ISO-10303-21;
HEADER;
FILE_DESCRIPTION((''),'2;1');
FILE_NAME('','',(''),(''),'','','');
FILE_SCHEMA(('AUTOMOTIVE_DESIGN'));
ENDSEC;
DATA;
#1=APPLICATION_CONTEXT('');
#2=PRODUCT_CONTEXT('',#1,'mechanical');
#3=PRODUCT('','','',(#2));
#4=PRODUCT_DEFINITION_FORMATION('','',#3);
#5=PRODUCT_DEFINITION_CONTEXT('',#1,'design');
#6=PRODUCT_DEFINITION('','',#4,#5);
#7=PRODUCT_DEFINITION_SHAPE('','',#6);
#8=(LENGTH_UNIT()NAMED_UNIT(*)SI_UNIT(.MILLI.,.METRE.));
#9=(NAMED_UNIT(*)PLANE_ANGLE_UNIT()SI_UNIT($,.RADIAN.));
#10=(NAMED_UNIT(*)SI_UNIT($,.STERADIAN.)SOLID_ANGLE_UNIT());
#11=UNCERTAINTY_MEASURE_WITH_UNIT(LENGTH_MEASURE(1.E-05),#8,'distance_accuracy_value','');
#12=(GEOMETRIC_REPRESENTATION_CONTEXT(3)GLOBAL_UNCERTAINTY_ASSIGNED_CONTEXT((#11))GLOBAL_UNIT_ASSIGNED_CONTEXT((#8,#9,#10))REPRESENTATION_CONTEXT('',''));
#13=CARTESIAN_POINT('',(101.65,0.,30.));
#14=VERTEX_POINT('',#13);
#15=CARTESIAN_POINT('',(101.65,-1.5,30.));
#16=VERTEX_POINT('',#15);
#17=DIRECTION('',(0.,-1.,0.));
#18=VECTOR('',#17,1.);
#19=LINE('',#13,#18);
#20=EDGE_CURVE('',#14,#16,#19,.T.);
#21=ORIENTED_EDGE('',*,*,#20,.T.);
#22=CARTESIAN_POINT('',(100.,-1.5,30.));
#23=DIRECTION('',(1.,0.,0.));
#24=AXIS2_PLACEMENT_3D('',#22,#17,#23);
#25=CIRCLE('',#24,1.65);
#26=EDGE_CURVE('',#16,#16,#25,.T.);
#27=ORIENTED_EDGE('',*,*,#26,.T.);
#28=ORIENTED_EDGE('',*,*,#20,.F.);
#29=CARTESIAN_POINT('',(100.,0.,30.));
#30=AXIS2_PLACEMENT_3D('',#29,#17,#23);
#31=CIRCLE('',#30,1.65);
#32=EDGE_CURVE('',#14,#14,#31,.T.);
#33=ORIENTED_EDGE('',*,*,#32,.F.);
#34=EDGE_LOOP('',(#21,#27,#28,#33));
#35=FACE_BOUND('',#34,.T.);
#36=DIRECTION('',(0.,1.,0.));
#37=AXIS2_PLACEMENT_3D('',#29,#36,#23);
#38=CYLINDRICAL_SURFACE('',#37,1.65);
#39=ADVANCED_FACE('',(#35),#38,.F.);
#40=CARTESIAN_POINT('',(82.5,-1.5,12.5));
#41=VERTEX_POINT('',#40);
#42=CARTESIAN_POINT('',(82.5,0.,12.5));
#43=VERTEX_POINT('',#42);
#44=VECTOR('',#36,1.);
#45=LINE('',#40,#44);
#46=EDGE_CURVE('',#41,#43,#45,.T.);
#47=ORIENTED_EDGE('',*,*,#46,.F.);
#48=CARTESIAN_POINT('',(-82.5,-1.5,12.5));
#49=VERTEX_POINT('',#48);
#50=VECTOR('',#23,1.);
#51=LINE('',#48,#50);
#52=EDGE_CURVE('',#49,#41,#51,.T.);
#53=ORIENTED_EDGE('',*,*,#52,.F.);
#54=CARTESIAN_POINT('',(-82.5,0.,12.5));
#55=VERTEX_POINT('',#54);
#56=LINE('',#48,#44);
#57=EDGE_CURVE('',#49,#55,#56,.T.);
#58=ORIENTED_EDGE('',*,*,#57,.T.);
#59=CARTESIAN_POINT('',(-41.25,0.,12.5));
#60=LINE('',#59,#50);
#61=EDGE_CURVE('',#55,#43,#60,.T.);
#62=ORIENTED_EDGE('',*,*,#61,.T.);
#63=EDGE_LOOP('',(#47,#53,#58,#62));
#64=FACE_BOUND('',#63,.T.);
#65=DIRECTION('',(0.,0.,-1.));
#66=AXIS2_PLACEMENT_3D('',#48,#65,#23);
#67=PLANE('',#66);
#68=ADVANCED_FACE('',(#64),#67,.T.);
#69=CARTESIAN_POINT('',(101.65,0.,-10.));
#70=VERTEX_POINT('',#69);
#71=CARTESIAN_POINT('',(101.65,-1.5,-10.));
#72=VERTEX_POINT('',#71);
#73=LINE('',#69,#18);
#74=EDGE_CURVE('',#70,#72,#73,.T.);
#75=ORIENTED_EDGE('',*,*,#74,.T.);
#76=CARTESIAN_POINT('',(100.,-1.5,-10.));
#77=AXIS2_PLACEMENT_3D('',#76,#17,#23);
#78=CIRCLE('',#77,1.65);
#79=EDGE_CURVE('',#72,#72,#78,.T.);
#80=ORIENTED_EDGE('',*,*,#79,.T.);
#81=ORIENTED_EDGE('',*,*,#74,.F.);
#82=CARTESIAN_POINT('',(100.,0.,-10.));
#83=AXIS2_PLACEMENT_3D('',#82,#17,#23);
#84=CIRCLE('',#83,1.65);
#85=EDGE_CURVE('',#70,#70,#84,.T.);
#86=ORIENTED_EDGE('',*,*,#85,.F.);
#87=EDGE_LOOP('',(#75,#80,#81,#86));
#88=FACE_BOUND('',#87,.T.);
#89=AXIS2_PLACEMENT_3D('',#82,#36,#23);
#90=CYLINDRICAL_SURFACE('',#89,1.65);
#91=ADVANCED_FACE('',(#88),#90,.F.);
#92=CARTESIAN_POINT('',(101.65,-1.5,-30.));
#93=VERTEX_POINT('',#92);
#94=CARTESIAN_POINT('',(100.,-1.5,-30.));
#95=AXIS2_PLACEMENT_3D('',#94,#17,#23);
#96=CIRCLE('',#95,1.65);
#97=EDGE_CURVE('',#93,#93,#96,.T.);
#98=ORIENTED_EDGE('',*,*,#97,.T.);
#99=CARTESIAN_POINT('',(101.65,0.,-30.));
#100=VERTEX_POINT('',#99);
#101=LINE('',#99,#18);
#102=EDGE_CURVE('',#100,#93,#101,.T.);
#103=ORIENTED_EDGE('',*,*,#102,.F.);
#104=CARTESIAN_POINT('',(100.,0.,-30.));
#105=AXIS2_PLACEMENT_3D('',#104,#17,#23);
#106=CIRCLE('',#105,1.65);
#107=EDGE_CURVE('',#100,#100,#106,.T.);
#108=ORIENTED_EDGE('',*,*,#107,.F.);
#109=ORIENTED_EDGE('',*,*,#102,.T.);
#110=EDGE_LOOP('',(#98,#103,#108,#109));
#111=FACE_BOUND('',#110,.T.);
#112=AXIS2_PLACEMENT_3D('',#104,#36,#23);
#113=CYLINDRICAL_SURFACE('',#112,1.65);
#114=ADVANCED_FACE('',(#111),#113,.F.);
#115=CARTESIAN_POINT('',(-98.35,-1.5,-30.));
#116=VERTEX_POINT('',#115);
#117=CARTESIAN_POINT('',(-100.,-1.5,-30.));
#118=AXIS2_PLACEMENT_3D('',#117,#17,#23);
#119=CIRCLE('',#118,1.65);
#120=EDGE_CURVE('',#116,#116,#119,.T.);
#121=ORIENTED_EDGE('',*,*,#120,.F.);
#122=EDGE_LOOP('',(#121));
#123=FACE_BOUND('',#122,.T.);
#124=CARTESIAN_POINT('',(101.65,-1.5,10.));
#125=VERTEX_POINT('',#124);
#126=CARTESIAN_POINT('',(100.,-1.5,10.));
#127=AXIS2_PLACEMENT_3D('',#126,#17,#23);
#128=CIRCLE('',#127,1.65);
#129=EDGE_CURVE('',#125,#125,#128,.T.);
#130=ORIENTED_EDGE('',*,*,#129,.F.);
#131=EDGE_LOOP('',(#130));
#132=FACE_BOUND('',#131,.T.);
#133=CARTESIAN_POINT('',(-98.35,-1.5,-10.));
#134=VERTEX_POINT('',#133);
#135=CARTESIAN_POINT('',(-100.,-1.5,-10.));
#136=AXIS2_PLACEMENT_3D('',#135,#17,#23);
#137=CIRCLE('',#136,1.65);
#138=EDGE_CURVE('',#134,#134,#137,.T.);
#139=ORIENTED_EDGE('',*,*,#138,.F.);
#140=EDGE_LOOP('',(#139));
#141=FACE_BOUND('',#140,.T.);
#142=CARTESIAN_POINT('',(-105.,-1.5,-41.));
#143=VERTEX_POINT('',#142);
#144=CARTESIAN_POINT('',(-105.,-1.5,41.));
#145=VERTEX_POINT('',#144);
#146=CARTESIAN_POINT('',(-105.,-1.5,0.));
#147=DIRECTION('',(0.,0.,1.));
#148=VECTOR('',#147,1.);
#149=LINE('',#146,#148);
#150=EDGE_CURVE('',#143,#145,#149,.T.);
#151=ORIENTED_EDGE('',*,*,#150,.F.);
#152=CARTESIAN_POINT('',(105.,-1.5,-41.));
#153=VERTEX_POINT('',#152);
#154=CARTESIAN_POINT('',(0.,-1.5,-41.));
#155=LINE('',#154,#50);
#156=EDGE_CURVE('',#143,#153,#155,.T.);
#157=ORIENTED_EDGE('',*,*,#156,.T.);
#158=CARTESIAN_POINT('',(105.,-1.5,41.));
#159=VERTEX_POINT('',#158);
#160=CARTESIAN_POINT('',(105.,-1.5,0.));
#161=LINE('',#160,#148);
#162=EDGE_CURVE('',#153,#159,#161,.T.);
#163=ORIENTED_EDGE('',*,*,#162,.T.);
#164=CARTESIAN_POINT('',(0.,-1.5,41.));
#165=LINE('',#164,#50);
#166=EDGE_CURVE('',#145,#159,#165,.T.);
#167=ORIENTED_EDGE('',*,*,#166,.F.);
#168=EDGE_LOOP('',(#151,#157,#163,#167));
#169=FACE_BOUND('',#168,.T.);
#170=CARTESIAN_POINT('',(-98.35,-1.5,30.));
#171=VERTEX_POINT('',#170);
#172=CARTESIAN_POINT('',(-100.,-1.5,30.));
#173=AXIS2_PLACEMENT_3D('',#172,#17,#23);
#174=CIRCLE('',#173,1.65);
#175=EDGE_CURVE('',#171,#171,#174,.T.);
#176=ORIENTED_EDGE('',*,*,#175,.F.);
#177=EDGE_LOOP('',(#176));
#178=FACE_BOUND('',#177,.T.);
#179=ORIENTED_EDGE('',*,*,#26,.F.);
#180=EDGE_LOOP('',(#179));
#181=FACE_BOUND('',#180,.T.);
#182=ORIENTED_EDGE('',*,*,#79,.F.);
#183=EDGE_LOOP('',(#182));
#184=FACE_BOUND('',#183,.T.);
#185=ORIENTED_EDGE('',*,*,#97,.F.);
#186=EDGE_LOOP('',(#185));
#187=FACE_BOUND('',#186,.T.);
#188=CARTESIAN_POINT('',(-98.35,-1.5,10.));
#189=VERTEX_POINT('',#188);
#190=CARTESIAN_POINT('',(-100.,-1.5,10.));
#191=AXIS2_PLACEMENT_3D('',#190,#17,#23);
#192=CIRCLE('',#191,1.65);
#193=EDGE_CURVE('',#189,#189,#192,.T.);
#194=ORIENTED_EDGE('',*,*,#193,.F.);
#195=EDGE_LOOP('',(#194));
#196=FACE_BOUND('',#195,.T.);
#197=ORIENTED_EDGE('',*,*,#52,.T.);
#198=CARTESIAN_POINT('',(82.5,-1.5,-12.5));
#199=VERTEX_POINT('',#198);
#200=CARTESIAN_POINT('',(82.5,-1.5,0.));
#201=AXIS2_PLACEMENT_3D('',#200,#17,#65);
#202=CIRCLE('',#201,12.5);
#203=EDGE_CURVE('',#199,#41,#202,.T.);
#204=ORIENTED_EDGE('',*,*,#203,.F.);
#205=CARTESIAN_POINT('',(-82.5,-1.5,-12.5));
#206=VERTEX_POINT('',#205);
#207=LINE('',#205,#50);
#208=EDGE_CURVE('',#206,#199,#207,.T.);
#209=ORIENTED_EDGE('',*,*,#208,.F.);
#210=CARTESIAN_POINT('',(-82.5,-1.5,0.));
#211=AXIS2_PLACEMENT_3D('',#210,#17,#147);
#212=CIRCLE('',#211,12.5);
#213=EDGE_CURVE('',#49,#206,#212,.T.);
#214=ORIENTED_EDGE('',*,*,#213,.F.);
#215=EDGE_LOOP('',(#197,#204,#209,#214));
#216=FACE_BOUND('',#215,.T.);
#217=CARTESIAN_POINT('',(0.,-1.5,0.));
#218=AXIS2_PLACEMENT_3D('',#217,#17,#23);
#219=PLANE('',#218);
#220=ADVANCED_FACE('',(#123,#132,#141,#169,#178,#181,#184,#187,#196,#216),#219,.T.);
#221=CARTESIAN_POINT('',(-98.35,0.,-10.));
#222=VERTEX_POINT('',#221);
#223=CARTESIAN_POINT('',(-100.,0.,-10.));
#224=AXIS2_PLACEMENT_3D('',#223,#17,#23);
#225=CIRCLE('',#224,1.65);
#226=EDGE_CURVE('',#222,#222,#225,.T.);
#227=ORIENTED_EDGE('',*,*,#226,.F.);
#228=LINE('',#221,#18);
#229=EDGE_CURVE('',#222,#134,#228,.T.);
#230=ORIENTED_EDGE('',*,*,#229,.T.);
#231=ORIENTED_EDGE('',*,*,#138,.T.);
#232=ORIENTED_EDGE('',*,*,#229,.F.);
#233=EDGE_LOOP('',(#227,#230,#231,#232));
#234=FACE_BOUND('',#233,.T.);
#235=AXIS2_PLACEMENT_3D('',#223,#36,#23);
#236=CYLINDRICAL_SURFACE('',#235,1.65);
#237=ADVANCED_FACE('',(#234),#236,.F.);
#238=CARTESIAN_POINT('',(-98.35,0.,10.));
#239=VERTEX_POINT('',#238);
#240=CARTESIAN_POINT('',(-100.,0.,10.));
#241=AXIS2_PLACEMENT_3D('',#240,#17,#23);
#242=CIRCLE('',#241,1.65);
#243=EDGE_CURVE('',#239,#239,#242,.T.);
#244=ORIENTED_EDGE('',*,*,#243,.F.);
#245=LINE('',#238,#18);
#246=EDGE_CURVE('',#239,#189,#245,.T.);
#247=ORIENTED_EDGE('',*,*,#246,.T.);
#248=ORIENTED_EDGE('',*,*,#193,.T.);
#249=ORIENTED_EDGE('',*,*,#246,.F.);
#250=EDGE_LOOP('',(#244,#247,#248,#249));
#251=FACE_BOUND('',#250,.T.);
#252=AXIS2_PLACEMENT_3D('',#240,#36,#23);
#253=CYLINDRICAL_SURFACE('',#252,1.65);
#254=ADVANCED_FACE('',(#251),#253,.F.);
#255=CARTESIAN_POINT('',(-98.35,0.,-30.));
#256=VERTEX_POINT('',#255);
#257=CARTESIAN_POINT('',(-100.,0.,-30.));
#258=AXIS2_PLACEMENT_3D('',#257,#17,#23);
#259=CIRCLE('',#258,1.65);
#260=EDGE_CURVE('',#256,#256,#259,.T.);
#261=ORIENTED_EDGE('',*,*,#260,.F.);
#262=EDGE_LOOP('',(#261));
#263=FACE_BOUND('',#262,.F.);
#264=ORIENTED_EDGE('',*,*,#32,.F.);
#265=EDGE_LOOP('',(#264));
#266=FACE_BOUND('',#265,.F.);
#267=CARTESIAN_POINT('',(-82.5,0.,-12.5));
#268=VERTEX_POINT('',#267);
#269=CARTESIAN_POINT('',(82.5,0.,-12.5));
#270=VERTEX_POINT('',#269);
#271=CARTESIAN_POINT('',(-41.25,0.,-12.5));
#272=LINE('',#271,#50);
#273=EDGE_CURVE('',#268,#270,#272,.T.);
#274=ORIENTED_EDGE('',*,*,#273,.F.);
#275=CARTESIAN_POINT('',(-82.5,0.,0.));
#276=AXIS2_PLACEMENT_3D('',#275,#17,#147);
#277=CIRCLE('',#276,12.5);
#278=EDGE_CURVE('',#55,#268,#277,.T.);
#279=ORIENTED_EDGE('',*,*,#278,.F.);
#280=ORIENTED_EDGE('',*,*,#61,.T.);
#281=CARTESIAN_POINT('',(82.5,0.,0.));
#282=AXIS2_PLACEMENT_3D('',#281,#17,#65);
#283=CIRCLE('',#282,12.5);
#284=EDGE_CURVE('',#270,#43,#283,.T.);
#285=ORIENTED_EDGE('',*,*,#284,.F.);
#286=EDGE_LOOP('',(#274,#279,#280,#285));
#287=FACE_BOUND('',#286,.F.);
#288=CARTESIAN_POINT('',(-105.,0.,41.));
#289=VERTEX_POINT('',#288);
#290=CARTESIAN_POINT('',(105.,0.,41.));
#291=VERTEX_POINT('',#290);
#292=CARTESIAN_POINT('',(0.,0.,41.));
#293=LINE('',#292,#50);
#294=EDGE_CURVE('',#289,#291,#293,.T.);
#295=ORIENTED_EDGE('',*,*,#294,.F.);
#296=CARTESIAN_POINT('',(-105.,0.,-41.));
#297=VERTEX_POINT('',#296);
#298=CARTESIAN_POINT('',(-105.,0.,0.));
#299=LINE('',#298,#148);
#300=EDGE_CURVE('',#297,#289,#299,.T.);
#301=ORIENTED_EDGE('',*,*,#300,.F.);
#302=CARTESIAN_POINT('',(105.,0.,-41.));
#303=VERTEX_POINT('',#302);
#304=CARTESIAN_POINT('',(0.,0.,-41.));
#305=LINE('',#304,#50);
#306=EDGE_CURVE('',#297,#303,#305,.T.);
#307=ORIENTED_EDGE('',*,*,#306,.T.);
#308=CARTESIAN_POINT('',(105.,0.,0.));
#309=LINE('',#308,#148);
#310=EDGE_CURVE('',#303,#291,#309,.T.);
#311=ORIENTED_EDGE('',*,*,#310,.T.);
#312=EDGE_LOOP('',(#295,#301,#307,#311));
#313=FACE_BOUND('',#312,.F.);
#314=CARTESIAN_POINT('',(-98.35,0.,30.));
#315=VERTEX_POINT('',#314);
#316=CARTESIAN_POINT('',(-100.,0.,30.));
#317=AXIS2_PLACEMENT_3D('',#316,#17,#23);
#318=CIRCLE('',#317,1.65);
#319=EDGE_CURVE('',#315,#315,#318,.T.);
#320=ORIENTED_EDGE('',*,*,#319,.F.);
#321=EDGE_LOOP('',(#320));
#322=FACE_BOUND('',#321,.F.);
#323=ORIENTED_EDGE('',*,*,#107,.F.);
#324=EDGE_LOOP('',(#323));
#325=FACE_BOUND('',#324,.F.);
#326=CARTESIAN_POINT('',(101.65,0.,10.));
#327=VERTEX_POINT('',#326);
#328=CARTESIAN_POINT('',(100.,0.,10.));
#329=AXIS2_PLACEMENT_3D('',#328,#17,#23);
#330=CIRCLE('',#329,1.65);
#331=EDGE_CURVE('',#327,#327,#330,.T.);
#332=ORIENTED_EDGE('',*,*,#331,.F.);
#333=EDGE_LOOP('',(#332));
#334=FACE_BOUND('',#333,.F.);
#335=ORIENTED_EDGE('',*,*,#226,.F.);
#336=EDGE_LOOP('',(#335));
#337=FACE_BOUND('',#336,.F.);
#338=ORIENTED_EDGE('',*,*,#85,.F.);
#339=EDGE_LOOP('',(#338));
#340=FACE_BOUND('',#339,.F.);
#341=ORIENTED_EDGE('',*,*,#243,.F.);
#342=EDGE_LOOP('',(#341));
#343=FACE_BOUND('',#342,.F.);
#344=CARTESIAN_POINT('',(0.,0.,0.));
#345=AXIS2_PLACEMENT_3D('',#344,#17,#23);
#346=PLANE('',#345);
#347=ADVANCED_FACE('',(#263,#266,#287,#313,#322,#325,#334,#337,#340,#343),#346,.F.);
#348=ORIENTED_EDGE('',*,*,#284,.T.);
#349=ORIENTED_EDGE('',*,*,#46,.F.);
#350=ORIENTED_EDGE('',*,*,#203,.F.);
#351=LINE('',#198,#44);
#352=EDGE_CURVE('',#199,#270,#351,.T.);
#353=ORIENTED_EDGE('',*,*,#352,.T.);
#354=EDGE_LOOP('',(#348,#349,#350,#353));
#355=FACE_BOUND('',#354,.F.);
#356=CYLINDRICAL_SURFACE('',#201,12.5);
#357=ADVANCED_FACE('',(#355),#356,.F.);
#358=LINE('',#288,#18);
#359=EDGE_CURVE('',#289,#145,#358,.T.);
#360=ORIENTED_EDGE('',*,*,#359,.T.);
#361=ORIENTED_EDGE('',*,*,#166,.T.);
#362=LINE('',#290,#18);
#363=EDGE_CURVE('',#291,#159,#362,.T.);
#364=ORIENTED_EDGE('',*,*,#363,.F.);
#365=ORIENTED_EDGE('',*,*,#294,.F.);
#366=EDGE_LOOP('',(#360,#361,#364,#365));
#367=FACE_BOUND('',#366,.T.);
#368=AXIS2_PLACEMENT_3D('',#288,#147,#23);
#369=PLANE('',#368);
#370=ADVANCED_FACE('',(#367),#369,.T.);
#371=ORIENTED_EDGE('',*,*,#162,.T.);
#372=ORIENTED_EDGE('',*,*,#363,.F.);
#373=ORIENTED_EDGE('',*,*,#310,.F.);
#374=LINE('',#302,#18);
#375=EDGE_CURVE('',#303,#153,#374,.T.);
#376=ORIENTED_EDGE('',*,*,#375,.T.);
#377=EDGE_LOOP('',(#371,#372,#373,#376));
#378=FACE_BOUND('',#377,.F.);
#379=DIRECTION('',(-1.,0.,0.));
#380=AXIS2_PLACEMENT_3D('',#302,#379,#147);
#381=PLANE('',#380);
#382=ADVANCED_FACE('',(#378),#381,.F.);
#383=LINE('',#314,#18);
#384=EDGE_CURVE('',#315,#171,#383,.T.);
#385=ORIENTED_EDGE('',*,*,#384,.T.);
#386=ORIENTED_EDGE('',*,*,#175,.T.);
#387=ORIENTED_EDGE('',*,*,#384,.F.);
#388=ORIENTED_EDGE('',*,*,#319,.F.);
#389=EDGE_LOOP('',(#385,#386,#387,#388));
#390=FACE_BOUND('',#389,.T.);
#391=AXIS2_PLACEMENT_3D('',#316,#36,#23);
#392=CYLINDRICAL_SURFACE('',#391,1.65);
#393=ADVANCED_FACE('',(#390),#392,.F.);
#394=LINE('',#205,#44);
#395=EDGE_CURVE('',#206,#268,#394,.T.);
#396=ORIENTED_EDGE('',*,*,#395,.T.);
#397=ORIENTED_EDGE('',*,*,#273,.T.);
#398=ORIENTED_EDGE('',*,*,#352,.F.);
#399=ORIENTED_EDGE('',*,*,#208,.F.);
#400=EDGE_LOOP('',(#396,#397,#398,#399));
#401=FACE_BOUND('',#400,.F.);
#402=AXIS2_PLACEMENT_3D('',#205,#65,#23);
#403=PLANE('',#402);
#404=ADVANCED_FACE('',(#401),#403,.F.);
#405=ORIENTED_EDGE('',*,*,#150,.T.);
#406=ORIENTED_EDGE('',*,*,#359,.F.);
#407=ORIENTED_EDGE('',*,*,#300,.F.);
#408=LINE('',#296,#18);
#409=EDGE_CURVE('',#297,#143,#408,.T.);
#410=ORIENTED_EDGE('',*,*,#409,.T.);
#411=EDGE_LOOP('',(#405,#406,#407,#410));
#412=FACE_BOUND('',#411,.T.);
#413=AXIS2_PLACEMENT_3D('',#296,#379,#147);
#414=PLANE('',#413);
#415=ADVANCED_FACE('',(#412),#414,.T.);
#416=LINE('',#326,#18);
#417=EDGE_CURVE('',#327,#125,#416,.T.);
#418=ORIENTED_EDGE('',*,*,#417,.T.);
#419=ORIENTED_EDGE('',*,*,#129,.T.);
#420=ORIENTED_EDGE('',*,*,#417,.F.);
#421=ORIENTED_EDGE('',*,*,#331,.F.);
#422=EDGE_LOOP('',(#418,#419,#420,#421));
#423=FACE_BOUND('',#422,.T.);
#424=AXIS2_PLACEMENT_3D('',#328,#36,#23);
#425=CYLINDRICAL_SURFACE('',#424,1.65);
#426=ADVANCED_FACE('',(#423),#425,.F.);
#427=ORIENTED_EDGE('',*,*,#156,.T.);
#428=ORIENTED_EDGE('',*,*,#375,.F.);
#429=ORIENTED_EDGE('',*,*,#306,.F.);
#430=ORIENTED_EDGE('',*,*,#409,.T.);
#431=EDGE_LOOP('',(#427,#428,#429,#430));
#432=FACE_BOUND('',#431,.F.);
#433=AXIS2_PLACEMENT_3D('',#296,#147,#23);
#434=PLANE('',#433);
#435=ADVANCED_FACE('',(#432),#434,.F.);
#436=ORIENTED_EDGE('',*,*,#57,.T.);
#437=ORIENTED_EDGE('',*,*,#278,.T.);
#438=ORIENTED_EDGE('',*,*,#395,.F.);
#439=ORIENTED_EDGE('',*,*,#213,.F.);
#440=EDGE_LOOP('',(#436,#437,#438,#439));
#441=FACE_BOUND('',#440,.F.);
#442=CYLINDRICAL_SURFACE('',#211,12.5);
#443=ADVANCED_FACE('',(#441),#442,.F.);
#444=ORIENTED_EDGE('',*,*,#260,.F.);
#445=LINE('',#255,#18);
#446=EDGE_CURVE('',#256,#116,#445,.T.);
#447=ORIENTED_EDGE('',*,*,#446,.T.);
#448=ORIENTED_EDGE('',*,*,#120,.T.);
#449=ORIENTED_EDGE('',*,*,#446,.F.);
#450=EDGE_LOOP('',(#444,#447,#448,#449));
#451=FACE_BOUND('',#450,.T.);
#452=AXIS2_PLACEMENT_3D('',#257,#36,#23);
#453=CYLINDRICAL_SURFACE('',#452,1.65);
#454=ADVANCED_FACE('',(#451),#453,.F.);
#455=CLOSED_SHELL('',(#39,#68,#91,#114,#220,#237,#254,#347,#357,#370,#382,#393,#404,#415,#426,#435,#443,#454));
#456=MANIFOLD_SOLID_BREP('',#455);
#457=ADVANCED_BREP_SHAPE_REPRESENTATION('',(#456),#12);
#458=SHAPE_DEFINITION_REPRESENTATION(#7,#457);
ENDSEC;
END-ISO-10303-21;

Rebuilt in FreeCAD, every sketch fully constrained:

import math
import FreeCAD as App
import Part
import Sketcher
Q = App.Units.Quantity


def add_polygon(sketch, points):
    """Adds a closed chain of lines whose ends are joined by coincident constraints."""
    first, n = sketch.GeometryCount, len(points)
    for a, b in zip(points, points[1:] + points[:1]):
        sketch.addGeometry(Part.LineSegment(App.Vector(*a, 0), App.Vector(*b, 0)), False)
    for i in range(n):
        sketch.addConstraint(Sketcher.Constraint("Coincident", first + i, 2, first + (i + 1) % n, 1))

doc = App.newDocument("Part")
body = doc.addObject("PartDesign::Body", "Body")

# Sketch on XZ plane
sketch1 = body.newObject("Sketcher::SketchObject", "Sketch")
sketch1.AttachmentSupport = (doc.getObject("XZ_Plane"), [""])
sketch1.MapMode = "FlatFace"
add_polygon(sketch1, [(-105, 41), (-105, -41), (105, -41), (105, 41)])  # lines 0-3
sketch1.addGeometry(Part.Circle(App.Vector(-100, -30, 0), App.Vector(0, 0, 1), 1.65), False)  # 4
sketch1.addGeometry(Part.Circle(App.Vector(-100, -10, 0), App.Vector(0, 0, 1), 1.65), False)  # 5
sketch1.addGeometry(Part.Circle(App.Vector(100, -30, 0), App.Vector(0, 0, 1), 1.65), False)  # 6
sketch1.addGeometry(Part.Circle(App.Vector(100, -10, 0), App.Vector(0, 0, 1), 1.65), False)  # 7
sketch1.addGeometry(Part.Circle(App.Vector(-100, 10, 0), App.Vector(0, 0, 1), 1.65), False)  # 8
sketch1.addGeometry(Part.Circle(App.Vector(-100, 30, 0), App.Vector(0, 0, 1), 1.65), False)  # 9
sketch1.addGeometry(Part.Circle(App.Vector(100, 10, 0), App.Vector(0, 0, 1), 1.65), False)  # 10
sketch1.addGeometry(Part.Circle(App.Vector(100, 30, 0), App.Vector(0, 0, 1), 1.65), False)  # 11
sketch1.addConstraint(Sketcher.Constraint("Vertical", 0))
sketch1.addConstraint(Sketcher.Constraint("Horizontal", 1))
sketch1.addConstraint(Sketcher.Constraint("Vertical", 2))
sketch1.addConstraint(Sketcher.Constraint("Horizontal", 3))
sketch1.addConstraint(Sketcher.Constraint("Equal", 4, 5))
sketch1.addConstraint(Sketcher.Constraint("Equal", 5, 6))
sketch1.addConstraint(Sketcher.Constraint("Equal", 6, 7))
sketch1.addConstraint(Sketcher.Constraint("Equal", 7, 8))
sketch1.addConstraint(Sketcher.Constraint("Equal", 8, 9))
sketch1.addConstraint(Sketcher.Constraint("Equal", 9, 10))
sketch1.addConstraint(Sketcher.Constraint("Equal", 10, 11))
sketch1.addConstraint(Sketcher.Constraint("Symmetric", 7, 3, 8, 3, -1, 1))
sketch1.addConstraint(Sketcher.Constraint("Symmetric", 6, 3, 9, 3, -1, 1))
sketch1.addConstraint(Sketcher.Constraint("Symmetric", 5, 3, 10, 3, -1, 1))
sketch1.addConstraint(Sketcher.Constraint("Symmetric", 4, 3, 11, 3, -1, 1))
sketch1.addConstraint(Sketcher.Constraint("Symmetric", 0, 2, 2, 2, -1, 1))
sketch1.addConstraint(Sketcher.Constraint("Symmetric", 4, 3, 6, 3, -2))
sketch1.addConstraint(Sketcher.Constraint("Symmetric", 5, 3, 7, 3, -2))
sketch1.addConstraint(Sketcher.Constraint("Vertical", 4, 3, 5, 3))
sketch1.addConstraint(Sketcher.Constraint("Diameter", 4, Q("3.3 mm")))
sketch1.addConstraint(Sketcher.Constraint("DistanceX", 1, 1, 1, 2, Q("210 mm")))
sketch1.addConstraint(Sketcher.Constraint("DistanceY", 0, 2, 0, 1, Q("82 mm")))
sketch1.addConstraint(Sketcher.Constraint("DistanceX", 4, 3, -1, 1, Q("100 mm")))
sketch1.addConstraint(Sketcher.Constraint("DistanceY", 4, 3, -1, 1, Q("30 mm")))
sketch1.addConstraint(Sketcher.Constraint("DistanceY", 5, 3, -1, 1, Q("10 mm")))
pad1 = body.newObject("PartDesign::Pad", "Pad")
pad1.Profile = sketch1
pad1.Length = 1.5

# Sketch on XZ plane
sketch2 = body.newObject("Sketcher::SketchObject", "Sketch001")
sketch2.AttachmentSupport = (doc.getObject("XZ_Plane"), [""])
sketch2.MapMode = "FlatFace"
sketch2.AttachmentOffset = App.Placement(App.Vector(0, 0, 1.5), App.Rotation())
sketch2.addGeometry(Part.ArcOfCircle(Part.Circle(App.Vector(-82.5, 0, 0), App.Vector(0, 0, 1), 12.5), math.radians(90), math.radians(270)), False)
sketch2.addGeometry(Part.LineSegment(App.Vector(-82.5, -12.5, 0), App.Vector(82.5, -12.5, 0)), False)
sketch2.addGeometry(Part.ArcOfCircle(Part.Circle(App.Vector(82.5, 0, 0), App.Vector(0, 0, 1), 12.5), math.radians(-90), math.radians(90)), False)
sketch2.addGeometry(Part.LineSegment(App.Vector(82.5, 12.5, 0), App.Vector(-82.5, 12.5, 0)), False)
sketch2.addConstraint(Sketcher.Constraint("Tangent", 0, 2, 1, 1))
sketch2.addConstraint(Sketcher.Constraint("Tangent", 1, 2, 2, 1))
sketch2.addConstraint(Sketcher.Constraint("Tangent", 2, 2, 3, 1))
sketch2.addConstraint(Sketcher.Constraint("Tangent", 3, 2, 0, 1))
sketch2.addConstraint(Sketcher.Constraint("Horizontal", 1))
sketch2.addConstraint(Sketcher.Constraint("Horizontal", 3))
sketch2.addConstraint(Sketcher.Constraint("Symmetric", 0, 3, 2, 3, -1, 1))
sketch2.addConstraint(Sketcher.Constraint("Radius", 0, Q("12.5 mm")))
sketch2.addConstraint(Sketcher.Constraint("DistanceX", 1, 1, 1, 2, Q("165 mm")))
pocket1 = body.newObject("PartDesign::Pocket", "Pocket")
pocket1.Profile = sketch2
pocket1.Type = "ThroughAll"

doc.recompute()
